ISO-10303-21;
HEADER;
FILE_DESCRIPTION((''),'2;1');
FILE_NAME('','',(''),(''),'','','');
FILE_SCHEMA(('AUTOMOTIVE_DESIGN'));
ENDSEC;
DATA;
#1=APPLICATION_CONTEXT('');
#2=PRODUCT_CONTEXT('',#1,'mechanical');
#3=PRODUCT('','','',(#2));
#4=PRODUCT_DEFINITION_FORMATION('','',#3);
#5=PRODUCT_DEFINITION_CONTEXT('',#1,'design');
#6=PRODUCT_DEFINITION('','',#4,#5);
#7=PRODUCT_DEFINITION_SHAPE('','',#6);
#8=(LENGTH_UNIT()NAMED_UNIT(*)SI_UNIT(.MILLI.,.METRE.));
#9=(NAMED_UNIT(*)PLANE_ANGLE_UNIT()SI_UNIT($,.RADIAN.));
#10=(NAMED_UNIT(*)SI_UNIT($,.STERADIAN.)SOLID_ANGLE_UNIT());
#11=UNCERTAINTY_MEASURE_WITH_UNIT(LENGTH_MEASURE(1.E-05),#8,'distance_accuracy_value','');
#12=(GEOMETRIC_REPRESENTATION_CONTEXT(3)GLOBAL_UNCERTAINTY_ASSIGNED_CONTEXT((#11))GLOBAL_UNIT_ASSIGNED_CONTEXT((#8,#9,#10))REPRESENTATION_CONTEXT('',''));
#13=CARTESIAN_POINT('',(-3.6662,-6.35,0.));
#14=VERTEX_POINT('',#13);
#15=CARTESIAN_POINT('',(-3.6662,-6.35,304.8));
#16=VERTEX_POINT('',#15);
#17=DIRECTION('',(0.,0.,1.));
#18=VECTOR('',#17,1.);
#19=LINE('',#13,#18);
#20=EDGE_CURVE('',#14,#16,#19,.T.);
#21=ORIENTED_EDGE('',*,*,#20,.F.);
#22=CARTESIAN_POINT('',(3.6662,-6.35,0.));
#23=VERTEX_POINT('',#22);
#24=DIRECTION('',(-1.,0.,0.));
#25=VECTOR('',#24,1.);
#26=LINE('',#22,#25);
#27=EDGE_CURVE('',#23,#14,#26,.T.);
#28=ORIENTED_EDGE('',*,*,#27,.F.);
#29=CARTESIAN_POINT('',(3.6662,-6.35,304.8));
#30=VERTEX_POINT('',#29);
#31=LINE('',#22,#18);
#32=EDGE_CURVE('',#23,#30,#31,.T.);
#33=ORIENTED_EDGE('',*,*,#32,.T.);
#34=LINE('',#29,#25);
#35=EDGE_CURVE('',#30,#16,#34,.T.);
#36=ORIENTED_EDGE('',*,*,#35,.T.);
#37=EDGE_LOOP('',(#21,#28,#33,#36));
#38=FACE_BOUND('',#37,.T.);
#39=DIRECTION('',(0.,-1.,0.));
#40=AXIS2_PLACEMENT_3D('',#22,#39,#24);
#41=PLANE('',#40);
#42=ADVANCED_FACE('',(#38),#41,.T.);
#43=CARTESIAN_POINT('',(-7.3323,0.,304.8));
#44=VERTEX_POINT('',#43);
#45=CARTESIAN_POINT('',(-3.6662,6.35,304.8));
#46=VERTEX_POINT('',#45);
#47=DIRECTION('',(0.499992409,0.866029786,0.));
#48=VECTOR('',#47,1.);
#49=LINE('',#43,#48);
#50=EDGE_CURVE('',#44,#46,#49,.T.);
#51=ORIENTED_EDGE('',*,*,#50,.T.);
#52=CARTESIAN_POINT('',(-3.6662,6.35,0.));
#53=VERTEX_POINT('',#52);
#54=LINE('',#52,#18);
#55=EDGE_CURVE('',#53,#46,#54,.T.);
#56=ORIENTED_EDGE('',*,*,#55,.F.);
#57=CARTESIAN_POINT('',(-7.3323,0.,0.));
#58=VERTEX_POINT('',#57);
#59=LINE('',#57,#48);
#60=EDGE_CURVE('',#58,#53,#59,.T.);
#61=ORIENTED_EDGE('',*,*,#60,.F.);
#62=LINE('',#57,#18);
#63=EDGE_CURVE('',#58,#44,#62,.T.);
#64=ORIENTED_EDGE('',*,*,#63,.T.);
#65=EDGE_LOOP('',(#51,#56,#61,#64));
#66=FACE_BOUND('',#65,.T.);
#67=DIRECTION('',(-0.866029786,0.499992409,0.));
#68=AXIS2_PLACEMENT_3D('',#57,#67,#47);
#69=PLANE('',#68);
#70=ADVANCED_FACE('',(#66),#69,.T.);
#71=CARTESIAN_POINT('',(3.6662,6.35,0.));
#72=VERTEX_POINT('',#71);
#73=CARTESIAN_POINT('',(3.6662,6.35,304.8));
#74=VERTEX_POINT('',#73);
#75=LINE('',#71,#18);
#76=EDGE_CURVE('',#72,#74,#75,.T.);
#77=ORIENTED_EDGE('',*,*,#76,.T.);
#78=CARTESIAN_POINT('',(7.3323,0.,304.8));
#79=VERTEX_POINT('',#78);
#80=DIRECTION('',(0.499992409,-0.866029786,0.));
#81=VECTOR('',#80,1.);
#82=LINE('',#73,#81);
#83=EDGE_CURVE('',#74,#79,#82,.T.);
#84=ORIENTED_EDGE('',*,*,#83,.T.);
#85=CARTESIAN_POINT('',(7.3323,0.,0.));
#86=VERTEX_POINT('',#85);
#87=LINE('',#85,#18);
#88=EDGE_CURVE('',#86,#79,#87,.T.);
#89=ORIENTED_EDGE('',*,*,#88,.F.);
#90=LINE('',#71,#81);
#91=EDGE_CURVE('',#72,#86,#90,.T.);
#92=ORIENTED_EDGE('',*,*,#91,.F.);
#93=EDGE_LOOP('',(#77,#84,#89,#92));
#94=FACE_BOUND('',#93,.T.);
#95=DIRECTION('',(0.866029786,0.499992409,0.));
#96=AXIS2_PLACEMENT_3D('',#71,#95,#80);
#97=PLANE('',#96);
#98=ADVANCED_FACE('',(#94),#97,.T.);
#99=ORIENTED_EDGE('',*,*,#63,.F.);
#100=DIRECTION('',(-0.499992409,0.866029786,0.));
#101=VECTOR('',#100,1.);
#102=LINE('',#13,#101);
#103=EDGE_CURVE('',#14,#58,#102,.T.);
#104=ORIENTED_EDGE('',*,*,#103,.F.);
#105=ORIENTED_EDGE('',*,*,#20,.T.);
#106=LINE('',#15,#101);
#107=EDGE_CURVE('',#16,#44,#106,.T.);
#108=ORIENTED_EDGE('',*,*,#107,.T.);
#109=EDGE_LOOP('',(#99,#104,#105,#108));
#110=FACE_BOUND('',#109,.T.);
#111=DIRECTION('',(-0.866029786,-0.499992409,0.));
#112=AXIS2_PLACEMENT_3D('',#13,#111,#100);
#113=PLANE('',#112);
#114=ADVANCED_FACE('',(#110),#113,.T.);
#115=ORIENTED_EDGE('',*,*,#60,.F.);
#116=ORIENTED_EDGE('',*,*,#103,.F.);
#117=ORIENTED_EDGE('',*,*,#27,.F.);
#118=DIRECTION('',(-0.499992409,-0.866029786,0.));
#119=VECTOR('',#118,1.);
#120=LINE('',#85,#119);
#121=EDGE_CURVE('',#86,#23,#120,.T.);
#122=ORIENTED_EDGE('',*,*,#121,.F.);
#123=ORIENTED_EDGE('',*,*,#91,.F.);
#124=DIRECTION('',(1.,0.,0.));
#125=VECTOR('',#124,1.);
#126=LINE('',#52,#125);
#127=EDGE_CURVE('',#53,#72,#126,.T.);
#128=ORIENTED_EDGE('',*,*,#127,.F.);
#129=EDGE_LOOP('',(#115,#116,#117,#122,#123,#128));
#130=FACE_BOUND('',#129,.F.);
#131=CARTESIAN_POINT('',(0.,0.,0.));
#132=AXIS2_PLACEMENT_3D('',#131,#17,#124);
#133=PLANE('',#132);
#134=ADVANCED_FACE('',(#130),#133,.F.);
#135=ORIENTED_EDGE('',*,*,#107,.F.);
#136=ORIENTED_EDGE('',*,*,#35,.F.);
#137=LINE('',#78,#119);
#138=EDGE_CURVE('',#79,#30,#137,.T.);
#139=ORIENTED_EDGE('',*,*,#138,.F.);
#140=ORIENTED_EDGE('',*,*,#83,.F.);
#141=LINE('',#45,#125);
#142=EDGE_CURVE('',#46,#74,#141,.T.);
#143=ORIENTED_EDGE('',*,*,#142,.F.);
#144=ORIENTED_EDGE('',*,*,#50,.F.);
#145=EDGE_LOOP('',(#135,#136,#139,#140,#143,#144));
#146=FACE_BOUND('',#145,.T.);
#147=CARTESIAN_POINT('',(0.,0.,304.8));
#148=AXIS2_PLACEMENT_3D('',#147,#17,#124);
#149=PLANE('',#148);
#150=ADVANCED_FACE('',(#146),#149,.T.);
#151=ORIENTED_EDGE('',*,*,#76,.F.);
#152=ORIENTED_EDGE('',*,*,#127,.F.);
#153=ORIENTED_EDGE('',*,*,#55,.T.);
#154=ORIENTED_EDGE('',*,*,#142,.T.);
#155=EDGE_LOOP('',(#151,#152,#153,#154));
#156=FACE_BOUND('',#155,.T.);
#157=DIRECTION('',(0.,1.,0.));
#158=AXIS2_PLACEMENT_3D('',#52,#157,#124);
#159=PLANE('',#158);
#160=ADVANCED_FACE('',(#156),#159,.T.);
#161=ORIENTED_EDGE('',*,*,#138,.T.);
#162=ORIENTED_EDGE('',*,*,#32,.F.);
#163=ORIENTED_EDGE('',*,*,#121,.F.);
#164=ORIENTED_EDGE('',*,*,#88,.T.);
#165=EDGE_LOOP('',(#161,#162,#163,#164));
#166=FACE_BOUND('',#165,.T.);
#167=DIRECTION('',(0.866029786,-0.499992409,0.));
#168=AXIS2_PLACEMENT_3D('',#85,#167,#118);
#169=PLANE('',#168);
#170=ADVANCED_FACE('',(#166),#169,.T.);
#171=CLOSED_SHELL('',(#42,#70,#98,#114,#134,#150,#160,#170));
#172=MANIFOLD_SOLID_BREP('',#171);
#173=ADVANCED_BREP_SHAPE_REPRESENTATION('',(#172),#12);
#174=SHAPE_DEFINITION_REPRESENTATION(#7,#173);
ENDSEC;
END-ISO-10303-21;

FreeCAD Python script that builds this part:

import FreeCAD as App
import Part
import Sketcher
from FreeCAD import Vector
Q = App.Units.Quantity


def add_polygon(sketch, points):
    """Adds a closed chain of lines whose ends are joined by coincident constraints."""
    first, n = sketch.GeometryCount, len(points)
    for a, b in zip(points, points[1:] + points[:1]):
        sketch.addGeometry(Part.LineSegment(App.Vector(*a, 0), App.Vector(*b, 0)), False)
    for i in range(n):
        sketch.addConstraint(Sketcher.Constraint("Coincident", first + i, 2, first + (i + 1) % n, 1))

doc = App.newDocument("Part")
body = doc.addObject("PartDesign::Body", "Body")

# Sketch on XY plane
sketch1 = body.newObject("Sketcher::SketchObject", "Sketch")
sketch1.AttachmentSupport = (doc.getObject("XY_Plane"), [""])
sketch1.MapMode = "FlatFace"
add_polygon(sketch1, [(7, 0), (4, 6), (-4, 6), (-7, 0), (-4, -6), (4, -6)])  # lines 0-5
sketch1.addConstraint([
    Sketcher.Constraint("Horizontal", 1),
    Sketcher.Constraint("Horizontal", 4),
    Sketcher.Constraint("Symmetric", 0, 2, 3, 2, -1, 1),
    Sketcher.Constraint("Symmetric", 2, 2, 5, 2, -1, 1),
    Sketcher.Constraint("PointOnObject", 2, 2, -1),
    Sketcher.Constraint("Parallel", 2, 5),
    Sketcher.Constraint("Vertical", 1, 2, 3, 2),
    Sketcher.Constraint("DistanceY", 3, 2, 1, 2, Q("0.5 in")),
    Sketcher.Constraint("Angle", 0, Q("119.9995 deg")),
    Sketcher.Constraint("DistanceX", 2, 2, 0, 2, Q("0.433 in")),
])
pad1 = body.newObject("PartDesign::Pad", "Pad")
pad1.Profile = sketch1
pad1.Length = Q("12 in")

doc.recompute()
